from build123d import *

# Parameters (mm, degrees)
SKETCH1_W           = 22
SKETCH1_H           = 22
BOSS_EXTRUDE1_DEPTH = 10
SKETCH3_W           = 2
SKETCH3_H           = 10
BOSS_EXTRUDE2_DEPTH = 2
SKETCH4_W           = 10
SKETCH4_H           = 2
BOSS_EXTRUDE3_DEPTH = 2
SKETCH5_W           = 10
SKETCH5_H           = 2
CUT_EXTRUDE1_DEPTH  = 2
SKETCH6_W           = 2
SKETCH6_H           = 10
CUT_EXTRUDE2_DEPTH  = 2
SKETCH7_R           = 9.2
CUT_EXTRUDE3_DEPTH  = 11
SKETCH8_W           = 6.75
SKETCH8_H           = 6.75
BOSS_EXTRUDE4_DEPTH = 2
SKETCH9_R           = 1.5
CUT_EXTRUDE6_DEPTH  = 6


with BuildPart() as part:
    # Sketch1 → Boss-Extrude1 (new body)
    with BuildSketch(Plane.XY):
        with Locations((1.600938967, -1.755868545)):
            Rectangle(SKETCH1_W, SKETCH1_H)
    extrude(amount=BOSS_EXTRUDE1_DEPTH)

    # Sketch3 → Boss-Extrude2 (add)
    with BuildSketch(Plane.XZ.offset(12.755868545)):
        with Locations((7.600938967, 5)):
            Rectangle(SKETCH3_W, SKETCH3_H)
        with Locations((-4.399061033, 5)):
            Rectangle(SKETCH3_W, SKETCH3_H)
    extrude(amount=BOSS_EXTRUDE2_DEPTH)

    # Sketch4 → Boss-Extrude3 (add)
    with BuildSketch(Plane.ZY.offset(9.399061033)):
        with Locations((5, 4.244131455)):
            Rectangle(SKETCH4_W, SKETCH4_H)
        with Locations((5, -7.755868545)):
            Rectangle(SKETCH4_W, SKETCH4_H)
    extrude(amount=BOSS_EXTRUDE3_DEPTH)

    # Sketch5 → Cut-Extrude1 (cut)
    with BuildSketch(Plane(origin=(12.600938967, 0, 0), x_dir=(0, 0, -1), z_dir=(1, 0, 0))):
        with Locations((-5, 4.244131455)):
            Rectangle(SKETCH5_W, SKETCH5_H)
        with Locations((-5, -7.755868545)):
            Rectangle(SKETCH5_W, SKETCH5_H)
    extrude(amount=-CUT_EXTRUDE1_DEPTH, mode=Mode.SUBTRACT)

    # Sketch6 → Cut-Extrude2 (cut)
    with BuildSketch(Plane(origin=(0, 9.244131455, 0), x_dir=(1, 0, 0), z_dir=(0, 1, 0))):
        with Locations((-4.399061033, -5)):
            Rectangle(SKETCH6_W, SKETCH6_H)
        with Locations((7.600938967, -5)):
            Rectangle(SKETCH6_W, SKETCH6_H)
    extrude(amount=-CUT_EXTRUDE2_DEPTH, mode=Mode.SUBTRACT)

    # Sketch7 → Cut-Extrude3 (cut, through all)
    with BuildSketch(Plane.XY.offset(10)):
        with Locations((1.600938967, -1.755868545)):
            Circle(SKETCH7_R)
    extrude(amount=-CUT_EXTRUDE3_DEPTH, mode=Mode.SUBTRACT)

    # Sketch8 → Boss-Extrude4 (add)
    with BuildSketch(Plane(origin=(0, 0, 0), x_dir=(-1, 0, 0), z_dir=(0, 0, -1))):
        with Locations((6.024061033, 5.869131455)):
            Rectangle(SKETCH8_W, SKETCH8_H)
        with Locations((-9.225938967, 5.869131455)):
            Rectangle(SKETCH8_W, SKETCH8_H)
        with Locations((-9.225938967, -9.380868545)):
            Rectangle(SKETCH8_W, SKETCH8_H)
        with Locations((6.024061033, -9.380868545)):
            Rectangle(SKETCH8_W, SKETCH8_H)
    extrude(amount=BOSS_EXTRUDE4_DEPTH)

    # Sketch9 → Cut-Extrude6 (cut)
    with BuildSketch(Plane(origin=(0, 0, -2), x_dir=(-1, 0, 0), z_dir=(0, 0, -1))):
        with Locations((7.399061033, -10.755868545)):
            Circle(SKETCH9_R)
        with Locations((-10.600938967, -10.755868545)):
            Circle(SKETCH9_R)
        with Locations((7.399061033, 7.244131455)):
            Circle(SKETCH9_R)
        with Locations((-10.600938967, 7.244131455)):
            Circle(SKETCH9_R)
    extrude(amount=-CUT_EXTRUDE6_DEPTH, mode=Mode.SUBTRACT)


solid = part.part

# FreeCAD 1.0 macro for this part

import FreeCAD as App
import Part
import Sketcher


def add_polygon(sketch, points):
    """Adds a closed chain of lines whose ends are joined by coincident constraints."""
    first, n = sketch.GeometryCount, len(points)
    for a, b in zip(points, points[1:] + points[:1]):
        sketch.addGeometry(Part.LineSegment(App.Vector(*a, 0), App.Vector(*b, 0)), False)
    for i in range(n):
        sketch.addConstraint(Sketcher.Constraint("Coincident", first + i, 2, first + (i + 1) % n, 1))

doc = App.newDocument("Part")
params = doc.addObject("Spreadsheet::Sheet", "Params")
for row, (alias, value) in enumerate([
    ("sketch1_width", "22 mm"),
    ("pad1_length", "10 mm"),
    ("sketch2_width", "2 mm"),
    ("sketch2_height", "10 mm"),
    ("pad2_length", "2 mm"),
    ("sketch3_width", "2 mm"),
    ("sketch3_height", "10 mm"),
    ("pad3_length", "2 mm"),
    ("sketch4_width", "2 mm"),
    ("sketch4_height", "10 mm"),
    ("pocket1_length", "2 mm"),
    ("sketch5_width", "2 mm"),
    ("sketch5_height", "10 mm"),
    ("pocket2_length", "2 mm"),
    ("sketch6_diameter", "18.4 mm"),
    ("sketch7_width", "6.75 mm"),
    ("pad4_length", "2 mm"),
    ("sketch8_diameter", "3 mm"),
    ("pocket4_length", "6 mm"),
], start=1):
    params.set(f"A{row}", alias)
    params.set(f"B{row}", "=" + value)
    params.setAlias(f"B{row}", alias)

body = doc.addObject("PartDesign::Body", "Body")

# Sketch on XY plane
sketch1 = body.newObject("Sketcher::SketchObject", "Sketch")
sketch1.AttachmentSupport = (doc.getObject("XY_Plane"), [""])
sketch1.MapMode = "FlatFace"
add_polygon(sketch1, [(-9, 9), (-9, -13), (13, -13), (13, 9)])  # lines 0-3
sketch1.addConstraint([
    Sketcher.Constraint("Vertical", 0),
    Sketcher.Constraint("Horizontal", 1),
    Sketcher.Constraint("Vertical", 2),
    Sketcher.Constraint("Horizontal", 3),
    Sketcher.Constraint("Equal", 3, 0),
    Sketcher.Constraint("DistanceX", 1, 1, 1, 2, 22.0),
    Sketcher.Constraint("DistanceX", 0, 2, -1, 1, 9.399061),
    Sketcher.Constraint("DistanceY", 0, 2, -1, 1, 12.755869),
])
sketch1.setExpression("Constraints[9]", "Params.sketch1_width")
pad1 = body.newObject("PartDesign::Pad", "Pad")
pad1.Profile = sketch1
pad1.setExpression("Length", "Params.pad1_length")

# Sketch on XZ plane
sketch2 = body.newObject("Sketcher::SketchObject", "Sketch001")
sketch2.AttachmentSupport = (doc.getObject("XZ_Plane"), [""])
sketch2.MapMode = "FlatFace"
sketch2.AttachmentOffset = App.Placement(App.Vector(0, 0, 12.755869), App.Rotation())
add_polygon(sketch2, [(6.6, 10), (6.6, 0), (8.6, 0), (8.6, 10)])  # lines 0-3
add_polygon(sketch2, [(-5.4, 10), (-5.4, 0), (-3.4, 0), (-3.4, 10)])  # lines 4-7
sketch2.addConstraint([
    Sketcher.Constraint("Vertical", 0),
    Sketcher.Constraint("Horizontal", 1),
    Sketcher.Constraint("Vertical", 2),
    Sketcher.Constraint("Horizontal", 3),
    Sketcher.Constraint("Vertical", 4),
    Sketcher.Constraint("Horizontal", 5),
    Sketcher.Constraint("Vertical", 6),
    Sketcher.Constraint("Horizontal", 7),
    Sketcher.Constraint("PointOnObject", 0, 2, -1),
    Sketcher.Constraint("PointOnObject", 4, 2, -1),
    Sketcher.Constraint("Horizontal", 3, 2, 6, 2),
    Sketcher.Constraint("Equal", 3, 5),
    Sketcher.Constraint("DistanceX", 1, 1, 1, 2, 2.0),
    Sketcher.Constraint("DistanceY", 0, 2, 0, 1, 10.0),
    Sketcher.Constraint("DistanceX", 4, 2, 0, 2, 12.0),
    Sketcher.Constraint("DistanceX", -1, 1, 0, 2, 6.600939),
])
sketch2.setExpression("Constraints[20]", "Params.sketch2_width")
sketch2.setExpression("Constraints[21]", "Params.sketch2_height")
pad2 = body.newObject("PartDesign::Pad", "Pad001")
pad2.Profile = sketch2
pad2.setExpression("Length", "Params.pad2_length")

# Sketch on YZ plane
sketch3 = body.newObject("Sketcher::SketchObject", "Sketch002")
sketch3.AttachmentSupport = (doc.getObject("YZ_Plane"), [""])
sketch3.MapMode = "FlatFace"
sketch3.AttachmentOffset = App.Placement(App.Vector(0, 0, -9.399061), App.Rotation())
add_polygon(sketch3, [(5.2, 0), (3.2, 0), (3.2, 10), (5.2, 10)])  # lines 0-3
add_polygon(sketch3, [(-6.8, 0), (-8.8, 0), (-8.8, 10), (-6.8, 10)])  # lines 4-7
sketch3.addConstraint([
    Sketcher.Constraint("Horizontal", 0),
    Sketcher.Constraint("Vertical", 1),
    Sketcher.Constraint("Horizontal", 2),
    Sketcher.Constraint("Vertical", 3),
    Sketcher.Constraint("Horizontal", 4),
    Sketcher.Constraint("Vertical", 5),
    Sketcher.Constraint("Horizontal", 6),
    Sketcher.Constraint("Vertical", 7),
    Sketcher.Constraint("PointOnObject", 0, 2, -1),
    Sketcher.Constraint("PointOnObject", 4, 2, -1),
    Sketcher.Constraint("Horizontal", 2, 2, 5, 2),
    Sketcher.Constraint("Equal", 2, 4),
    Sketcher.Constraint("DistanceX", 0, 2, 0, 1, 2.0),
    Sketcher.Constraint("DistanceY", 1, 1, 1, 2, 10.0),
    Sketcher.Constraint("DistanceX", 4, 2, 0, 2, 12.0),
    Sketcher.Constraint("DistanceX", -1, 1, 0, 2, 3.244131),
])
sketch3.setExpression("Constraints[20]", "Params.sketch3_width")
sketch3.setExpression("Constraints[21]", "Params.sketch3_height")
pad3 = body.newObject("PartDesign::Pad", "Pad002")
pad3.Profile = sketch3
pad3.setExpression("Length", "Params.pad3_length")
pad3.Reversed = True

# Sketch on YZ plane
sketch4 = body.newObject("Sketcher::SketchObject", "Sketch003")
sketch4.AttachmentSupport = (doc.getObject("YZ_Plane"), [""])
sketch4.MapMode = "FlatFace"
sketch4.AttachmentOffset = App.Placement(App.Vector(0, 0, 12.600939), App.Rotation())
add_polygon(sketch4, [(5.2, 10), (3.2, 10), (3.2, 0), (5.2, 0)])  # lines 0-3
add_polygon(sketch4, [(-6.8, 10), (-8.8, 10), (-8.8, 0), (-6.8, 0)])  # lines 4-7
sketch4.addConstraint([
    Sketcher.Constraint("Horizontal", 0),
    Sketcher.Constraint("Vertical", 1),
    Sketcher.Constraint("Horizontal", 2),
    Sketcher.Constraint("Vertical", 3),
    Sketcher.Constraint("Horizontal", 4),
    Sketcher.Constraint("Vertical", 5),
    Sketcher.Constraint("Horizontal", 6),
    Sketcher.Constraint("Vertical", 7),
    Sketcher.Constraint("PointOnObject", 1, 2, -1),
    Sketcher.Constraint("PointOnObject", 5, 2, -1),
    Sketcher.Constraint("Horizontal", 3, 2, 4, 2),
    Sketcher.Constraint("Equal", 2, 4),
    Sketcher.Constraint("DistanceX", 0, 2, 0, 1, 2.0),
    Sketcher.Constraint("DistanceY", 1, 2, 1, 1, 10.0),
    Sketcher.Constraint("DistanceX", 4, 2, 0, 2, 12.0),
    Sketcher.Constraint("DistanceX", -1, 1, 0, 2, 3.244131),
])
sketch4.setExpression("Constraints[20]", "Params.sketch4_width")
sketch4.setExpression("Constraints[21]", "Params.sketch4_height")
pocket1 = body.newObject("PartDesign::Pocket", "Pocket")
pocket1.Profile = sketch4
pocket1.setExpression("Length", "Params.pocket1_length")

# Sketch on XZ plane
sketch5 = body.newObject("Sketcher::SketchObject", "Sketch004")
sketch5.AttachmentSupport = (doc.getObject("XZ_Plane"), [""])
sketch5.MapMode = "FlatFace"
sketch5.AttachmentOffset = App.Placement(App.Vector(0, 0, -9.244131), App.Rotation())
add_polygon(sketch5, [(-5.4, 0), (-5.4, 10), (-3.4, 10), (-3.4, 0)])  # lines 0-3
add_polygon(sketch5, [(6.6, 0), (6.6, 10), (8.6, 10), (8.6, 0)])  # lines 4-7
sketch5.addConstraint([
    Sketcher.Constraint("Vertical", 0),
    Sketcher.Constraint("Horizontal", 1),
    Sketcher.Constraint("Vertical", 2),
    Sketcher.Constraint("Horizontal", 3),
    Sketcher.Constraint("Vertical", 4),
    Sketcher.Constraint("Horizontal", 5),
    Sketcher.Constraint("Vertical", 6),
    Sketcher.Constraint("Horizontal", 7),
    Sketcher.Constraint("PointOnObject", 2, 2, -1),
    Sketcher.Constraint("PointOnObject", 6, 2, -1),
    Sketcher.Constraint("Horizontal", 1, 2, 4, 2),
    Sketcher.Constraint("Equal", 3, 5),
    Sketcher.Constraint("DistanceX", 1, 1, 1, 2, 2.0),
    Sketcher.Constraint("DistanceY", 0, 1, 0, 2, 10.0),
    Sketcher.Constraint("DistanceX", 1, 2, 4, 2, 10.0),
    Sketcher.Constraint("DistanceX", 0, 2, -1, 1, 5.399061),
])
sketch5.setExpression("Constraints[20]", "Params.sketch5_width")
sketch5.setExpression("Constraints[21]", "Params.sketch5_height")
pocket2 = body.newObject("PartDesign::Pocket", "Pocket001")
pocket2.Profile = sketch5
pocket2.setExpression("Length", "Params.pocket2_length")
pocket2.Reversed = True

# Sketch on XY plane
sketch6 = body.newObject("Sketcher::SketchObject", "Sketch005")
sketch6.AttachmentSupport = (doc.getObject("XY_Plane"), [""])
sketch6.MapMode = "FlatFace"
sketch6.AttachmentOffset = App.Placement(App.Vector(0, 0, 10), App.Rotation())
sketch6.addGeometry(Part.Circle(App.Vector(2, -2, 0), App.Vector(0, 0, 1), 9), False)
sketch6.addConstraint([
    Sketcher.Constraint("Diameter", 0, 18.4),
    Sketcher.Constraint("DistanceX", -1, 1, 0, 3, 1.600939),
    Sketcher.Constraint("DistanceY", 0, 3, -1, 1, 1.755869),
])
sketch6.setExpression("Constraints[0]", "Params.sketch6_diameter")
pocket3 = body.newObject("PartDesign::Pocket", "Pocket002")
pocket3.Profile = sketch6
pocket3.Type = "ThroughAll"

# Sketch on XY plane
sketch7 = body.newObject("Sketcher::SketchObject", "Sketch006")
sketch7.AttachmentSupport = (doc.getObject("XY_Plane"), [""])
sketch7.MapMode = "FlatFace"
add_polygon(sketch7, [(-3, 9), (-3, 2), (-9, 2), (-9, 9)])  # lines 0-3
add_polygon(sketch7, [(13, 9), (13, 2), (6, 2), (6, 9)])  # lines 4-7
add_polygon(sketch7, [(13, -6), (13, -13), (6, -13), (6, -6)])  # lines 8-11
add_polygon(sketch7, [(-3, -6), (-3, -13), (-9, -13), (-9, -6)])  # lines 12-15
sketch7.addConstraint([
    Sketcher.Constraint("Vertical", 0),
    Sketcher.Constraint("Horizontal", 1),
    Sketcher.Constraint("Vertical", 2),
    Sketcher.Constraint("Horizontal", 3),
    Sketcher.Constraint("Vertical", 4),
    Sketcher.Constraint("Horizontal", 5),
    Sketcher.Constraint("Vertical", 6),
    Sketcher.Constraint("Horizontal", 7),
    Sketcher.Constraint("Vertical", 8),
    Sketcher.Constraint("Horizontal", 9),
    Sketcher.Constraint("Vertical", 10),
    Sketcher.Constraint("Horizontal", 11),
    Sketcher.Constraint("Vertical", 12),
    Sketcher.Constraint("Horizontal", 13),
    Sketcher.Constraint("Vertical", 14),
    Sketcher.Constraint("Horizontal", 15),
    Sketcher.Constraint("Horizontal", 1, 2, 4, 2),
    Sketcher.Constraint("Horizontal", 3, 2, 6, 2),
    Sketcher.Constraint("Horizontal", 9, 2, 12, 2),
    Sketcher.Constraint("Horizontal", 11, 2, 14, 2),
    Sketcher.Constraint("Vertical", 7, 2, 8, 2),
    Sketcher.Constraint("Vertical", 6, 2, 9, 2),
    Sketcher.Constraint("Vertical", 3, 2, 12, 2),
    Sketcher.Constraint("Vertical", 2, 2, 13, 2),
    Sketcher.Constraint("Equal", 3, 5),
    Sketcher.Constraint("Equal", 15, 0),
    Sketcher.Constraint("Equal", 6, 8),
    Sketcher.Constraint("DistanceX", 1, 2, 4, 2, 22.0),
    Sketcher.Constraint("DistanceY", 8, 2, 7, 2, 22.0),
    Sketcher.Constraint("DistanceX", 1, 2, 1, 1, 6.75),
    Sketcher.Constraint("DistanceX", 0, 2, -1, 1, 2.649061),
    Sketcher.Constraint("DistanceY", -1, 1, 0, 2, 2.494131),
])
sketch7.setExpression("Constraints[45]", "Params.sketch7_width")
pad4 = body.newObject("PartDesign::Pad", "Pad003")
pad4.Profile = sketch7
pad4.setExpression("Length", "Params.pad4_length")
pad4.Reversed = True

# Sketch on XY plane
sketch8 = body.newObject("Sketcher::SketchObject", "Sketch007")
sketch8.AttachmentSupport = (doc.getObject("XY_Plane"), [""])
sketch8.MapMode = "FlatFace"
sketch8.AttachmentOffset = App.Placement(App.Vector(0, 0, -2), App.Rotation())
sketch8.addGeometry([
    Part.Circle(App.Vector(-7.4, -10.8, 0), App.Vector(0, 0, 1), 1.5),
    Part.Circle(App.Vector(10.6, -10.8, 0), App.Vector(0, 0, 1), 1.5),
    Part.Circle(App.Vector(-7.4, 7.2, 0), App.Vector(0, 0, 1), 1.5),
    Part.Circle(App.Vector(10.6, 7.2, 0), App.Vector(0, 0, 1), 1.5),
], False)
sketch8.addConstraint([
    Sketcher.Constraint("Equal", 0, 1),
    Sketcher.Constraint("Equal", 1, 2),
    Sketcher.Constraint("Equal", 2, 3),
    Sketcher.Constraint("Horizontal", 0, 3, 1, 3),
    Sketcher.Constraint("Horizontal", 2, 3, 3, 3),
    Sketcher.Constraint("Vertical", 0, 3, 2, 3),
    Sketcher.Constraint("Vertical", 1, 3, 3, 3),
    Sketcher.Constraint("Diameter", 0, 3.0),
    Sketcher.Constraint("DistanceX", 0, 3, 1, 3, 18.0),
    Sketcher.Constraint("DistanceY", 0, 3, 2, 3, 18.0),
    Sketcher.Constraint("DistanceX", 0, 3, -1, 1, 7.399061),
    Sketcher.Constraint("DistanceY", 0, 3, -1, 1, 10.755869),
])
sketch8.setExpression("Constraints[7]", "Params.sketch8_diameter")
pocket4 = body.newObject("PartDesign::Pocket", "Pocket003")
pocket4.Profile = sketch8
pocket4.setExpression("Length", "Params.pocket4_length")
pocket4.Reversed = True

doc.recompute()
